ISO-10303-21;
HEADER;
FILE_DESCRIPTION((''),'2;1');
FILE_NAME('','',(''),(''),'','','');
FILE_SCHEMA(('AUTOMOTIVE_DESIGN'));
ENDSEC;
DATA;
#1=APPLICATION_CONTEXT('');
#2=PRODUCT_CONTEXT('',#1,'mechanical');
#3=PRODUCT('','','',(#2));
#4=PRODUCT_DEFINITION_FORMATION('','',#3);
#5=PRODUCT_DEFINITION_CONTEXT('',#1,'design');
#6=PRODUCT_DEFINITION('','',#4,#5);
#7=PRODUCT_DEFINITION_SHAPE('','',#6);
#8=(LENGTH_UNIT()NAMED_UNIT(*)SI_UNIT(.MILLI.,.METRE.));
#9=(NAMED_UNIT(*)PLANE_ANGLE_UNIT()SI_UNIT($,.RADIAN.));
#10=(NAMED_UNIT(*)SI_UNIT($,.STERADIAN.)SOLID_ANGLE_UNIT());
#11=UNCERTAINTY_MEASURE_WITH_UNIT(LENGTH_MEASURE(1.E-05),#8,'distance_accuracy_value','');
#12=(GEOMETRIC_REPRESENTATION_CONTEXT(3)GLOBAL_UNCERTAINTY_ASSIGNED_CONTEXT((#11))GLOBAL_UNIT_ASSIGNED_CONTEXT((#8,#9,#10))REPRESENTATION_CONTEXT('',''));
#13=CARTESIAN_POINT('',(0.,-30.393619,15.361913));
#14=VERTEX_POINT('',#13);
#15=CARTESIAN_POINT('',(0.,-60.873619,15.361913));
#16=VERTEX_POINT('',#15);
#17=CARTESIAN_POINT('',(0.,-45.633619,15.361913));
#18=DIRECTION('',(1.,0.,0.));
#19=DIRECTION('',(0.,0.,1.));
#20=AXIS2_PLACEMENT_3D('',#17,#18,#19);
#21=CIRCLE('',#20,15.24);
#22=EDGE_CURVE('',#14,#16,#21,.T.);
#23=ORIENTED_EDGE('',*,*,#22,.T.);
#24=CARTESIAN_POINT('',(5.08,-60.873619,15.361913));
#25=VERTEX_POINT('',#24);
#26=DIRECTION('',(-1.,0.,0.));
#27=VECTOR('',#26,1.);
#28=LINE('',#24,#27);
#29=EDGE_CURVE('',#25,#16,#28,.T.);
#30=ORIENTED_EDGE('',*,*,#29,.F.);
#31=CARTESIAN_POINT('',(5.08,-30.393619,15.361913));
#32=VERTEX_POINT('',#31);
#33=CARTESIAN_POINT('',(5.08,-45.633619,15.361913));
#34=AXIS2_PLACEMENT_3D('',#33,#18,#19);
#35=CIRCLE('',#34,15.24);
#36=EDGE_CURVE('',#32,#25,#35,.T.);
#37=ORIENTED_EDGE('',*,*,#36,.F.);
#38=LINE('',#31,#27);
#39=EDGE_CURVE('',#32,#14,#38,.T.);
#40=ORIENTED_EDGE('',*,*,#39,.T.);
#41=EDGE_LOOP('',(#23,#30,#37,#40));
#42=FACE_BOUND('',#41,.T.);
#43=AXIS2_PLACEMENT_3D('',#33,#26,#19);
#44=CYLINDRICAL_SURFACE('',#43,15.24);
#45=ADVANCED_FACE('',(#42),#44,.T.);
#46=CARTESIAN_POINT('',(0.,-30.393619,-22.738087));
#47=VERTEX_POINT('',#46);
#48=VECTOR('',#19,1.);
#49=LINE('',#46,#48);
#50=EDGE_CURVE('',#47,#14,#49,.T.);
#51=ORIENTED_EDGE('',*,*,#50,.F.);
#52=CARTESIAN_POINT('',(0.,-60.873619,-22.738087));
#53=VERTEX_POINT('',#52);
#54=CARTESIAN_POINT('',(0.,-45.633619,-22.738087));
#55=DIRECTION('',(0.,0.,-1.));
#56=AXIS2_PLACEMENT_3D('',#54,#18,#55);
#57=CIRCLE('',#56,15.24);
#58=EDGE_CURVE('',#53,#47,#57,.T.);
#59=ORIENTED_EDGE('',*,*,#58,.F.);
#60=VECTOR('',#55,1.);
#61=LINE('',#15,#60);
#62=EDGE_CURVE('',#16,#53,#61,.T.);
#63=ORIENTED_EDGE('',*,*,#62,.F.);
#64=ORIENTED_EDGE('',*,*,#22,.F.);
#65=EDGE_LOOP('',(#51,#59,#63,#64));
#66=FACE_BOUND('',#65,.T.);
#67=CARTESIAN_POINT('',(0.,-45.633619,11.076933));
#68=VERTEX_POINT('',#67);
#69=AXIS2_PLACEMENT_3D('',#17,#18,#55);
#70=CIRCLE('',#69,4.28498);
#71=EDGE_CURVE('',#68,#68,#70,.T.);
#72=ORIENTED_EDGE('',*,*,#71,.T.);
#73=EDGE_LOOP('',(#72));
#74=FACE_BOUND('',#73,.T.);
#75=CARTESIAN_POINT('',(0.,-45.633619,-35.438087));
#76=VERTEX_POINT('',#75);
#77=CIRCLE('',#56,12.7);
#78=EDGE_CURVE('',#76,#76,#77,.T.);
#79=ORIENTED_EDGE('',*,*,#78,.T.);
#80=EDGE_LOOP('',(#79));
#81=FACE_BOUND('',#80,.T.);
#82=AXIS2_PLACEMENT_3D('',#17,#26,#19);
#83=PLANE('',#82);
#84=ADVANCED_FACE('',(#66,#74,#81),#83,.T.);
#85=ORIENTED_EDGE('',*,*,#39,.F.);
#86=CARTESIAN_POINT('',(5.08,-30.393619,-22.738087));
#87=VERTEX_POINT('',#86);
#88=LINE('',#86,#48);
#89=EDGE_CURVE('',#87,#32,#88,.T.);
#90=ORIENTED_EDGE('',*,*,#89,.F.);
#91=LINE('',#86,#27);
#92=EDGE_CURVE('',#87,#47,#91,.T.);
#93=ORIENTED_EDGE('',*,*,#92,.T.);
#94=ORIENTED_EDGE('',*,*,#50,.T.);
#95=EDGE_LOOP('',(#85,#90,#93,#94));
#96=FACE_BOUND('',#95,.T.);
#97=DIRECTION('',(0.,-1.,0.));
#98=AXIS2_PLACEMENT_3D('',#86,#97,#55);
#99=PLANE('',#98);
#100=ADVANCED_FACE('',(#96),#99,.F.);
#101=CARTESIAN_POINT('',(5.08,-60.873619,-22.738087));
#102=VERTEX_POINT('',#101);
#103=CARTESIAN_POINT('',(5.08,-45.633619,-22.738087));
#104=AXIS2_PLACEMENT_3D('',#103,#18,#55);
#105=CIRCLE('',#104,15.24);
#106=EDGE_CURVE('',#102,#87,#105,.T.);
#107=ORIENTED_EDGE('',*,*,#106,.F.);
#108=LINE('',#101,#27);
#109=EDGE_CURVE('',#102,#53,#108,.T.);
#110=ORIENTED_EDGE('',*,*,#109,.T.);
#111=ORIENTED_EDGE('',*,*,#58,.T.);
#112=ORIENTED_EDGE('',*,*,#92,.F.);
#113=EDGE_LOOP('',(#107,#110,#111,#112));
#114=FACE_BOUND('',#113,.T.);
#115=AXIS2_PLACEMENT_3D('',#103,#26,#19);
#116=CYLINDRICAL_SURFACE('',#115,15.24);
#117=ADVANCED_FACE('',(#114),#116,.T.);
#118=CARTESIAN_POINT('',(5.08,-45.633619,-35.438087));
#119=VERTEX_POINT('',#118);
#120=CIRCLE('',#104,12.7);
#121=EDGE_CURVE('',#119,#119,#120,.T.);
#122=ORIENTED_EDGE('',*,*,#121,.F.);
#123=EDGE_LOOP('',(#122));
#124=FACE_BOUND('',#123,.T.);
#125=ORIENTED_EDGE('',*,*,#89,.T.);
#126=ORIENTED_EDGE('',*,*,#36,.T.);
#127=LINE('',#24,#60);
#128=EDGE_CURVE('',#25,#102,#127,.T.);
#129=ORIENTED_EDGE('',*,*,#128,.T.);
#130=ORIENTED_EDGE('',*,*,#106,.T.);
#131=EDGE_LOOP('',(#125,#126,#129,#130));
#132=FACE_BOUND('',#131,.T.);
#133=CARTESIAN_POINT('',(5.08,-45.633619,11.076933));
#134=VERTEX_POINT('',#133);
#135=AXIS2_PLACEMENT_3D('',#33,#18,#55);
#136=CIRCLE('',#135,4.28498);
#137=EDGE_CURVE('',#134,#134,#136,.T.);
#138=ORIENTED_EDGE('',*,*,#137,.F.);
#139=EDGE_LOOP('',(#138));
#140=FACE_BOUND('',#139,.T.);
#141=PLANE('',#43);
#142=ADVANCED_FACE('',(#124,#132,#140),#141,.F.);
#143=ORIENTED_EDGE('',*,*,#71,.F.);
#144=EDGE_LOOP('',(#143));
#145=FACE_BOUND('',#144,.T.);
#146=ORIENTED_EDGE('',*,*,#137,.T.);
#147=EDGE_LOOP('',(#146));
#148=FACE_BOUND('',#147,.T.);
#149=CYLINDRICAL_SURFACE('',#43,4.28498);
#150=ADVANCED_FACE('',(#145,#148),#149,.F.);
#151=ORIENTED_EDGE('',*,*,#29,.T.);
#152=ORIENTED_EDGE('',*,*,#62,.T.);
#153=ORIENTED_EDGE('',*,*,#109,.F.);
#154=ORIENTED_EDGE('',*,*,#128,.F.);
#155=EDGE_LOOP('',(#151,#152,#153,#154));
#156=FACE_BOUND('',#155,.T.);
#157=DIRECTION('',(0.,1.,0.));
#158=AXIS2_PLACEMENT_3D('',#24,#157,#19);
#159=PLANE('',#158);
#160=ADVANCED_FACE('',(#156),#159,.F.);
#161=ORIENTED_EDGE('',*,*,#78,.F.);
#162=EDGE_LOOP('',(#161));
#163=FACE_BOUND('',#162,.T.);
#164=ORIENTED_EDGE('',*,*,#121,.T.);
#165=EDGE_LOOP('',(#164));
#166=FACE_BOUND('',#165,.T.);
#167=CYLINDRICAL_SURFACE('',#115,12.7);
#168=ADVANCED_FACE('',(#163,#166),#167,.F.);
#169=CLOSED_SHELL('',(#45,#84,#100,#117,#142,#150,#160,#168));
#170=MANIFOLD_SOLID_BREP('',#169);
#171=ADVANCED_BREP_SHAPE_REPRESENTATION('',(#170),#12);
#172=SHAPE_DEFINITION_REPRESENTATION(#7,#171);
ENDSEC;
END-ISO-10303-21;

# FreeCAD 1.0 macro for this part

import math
import FreeCAD as App
import Part
import Sketcher
Q = App.Units.Quantity

doc = App.newDocument("Part")
body = doc.addObject("PartDesign::Body", "Body")

sketch1 = doc.addObject("Sketcher::SketchObject", "Sketch")
body.addObject(sketch1)
sketch1.AttachmentSupport = (doc.YZ_Plane, [""])
sketch1.MapMode = "FlatFace"
sketch1.addGeometry(Part.LineSegment(App.Vector(-60.9, 15.4, 0), App.Vector(-60.9, -22.7, 0)), False)
sketch1.addGeometry(Part.ArcOfCircle(Part.Circle(App.Vector(-45.6, -22.7, 0), App.Vector(0, 0, 1), 15.2), math.radians(180), math.radians(360)), False)
sketch1.addGeometry(Part.LineSegment(App.Vector(-30.4, -22.7, 0), App.Vector(-30.4, 15.4, 0)), False)
sketch1.addGeometry(Part.ArcOfCircle(Part.Circle(App.Vector(-45.6, 15.4, 0), App.Vector(0, 0, 1), 15.2), math.radians(0), math.radians(180)), False)
sketch1.addGeometry(Part.Circle(App.Vector(-45.6, -22.7, 0), App.Vector(0, 0, 1), 12.7), False)
sketch1.addGeometry(Part.Circle(App.Vector(-45.6, 15.4, 0), App.Vector(0, 0, 1), 4.3), False)
sketch1.addConstraint(Sketcher.Constraint("Tangent", 0, 2, 1, 1))
sketch1.addConstraint(Sketcher.Constraint("Tangent", 1, 2, 2, 1))
sketch1.addConstraint(Sketcher.Constraint("Tangent", 2, 2, 3, 1))
sketch1.addConstraint(Sketcher.Constraint("Tangent", 3, 2, 0, 1))
sketch1.addConstraint(Sketcher.Constraint("Vertical", 0))
sketch1.addConstraint(Sketcher.Constraint("Vertical", 2))
sketch1.addConstraint(Sketcher.Constraint("Coincident", 4, 3, 1, 3))
sketch1.addConstraint(Sketcher.Constraint("Coincident", 5, 3, 3, 3))
sketch1.addConstraint(Sketcher.Constraint("Diameter", 4, Q("1 in")))
sketch1.addConstraint(Sketcher.Constraint("Radius", 1, Q("0.6 in")))
sketch1.addConstraint(Sketcher.Constraint("DistanceY", 0, 2, 0, 1, Q("1.5 in")))
sketch1.addConstraint(Sketcher.Constraint("Diameter", 5, Q("0.3374 in")))
sketch1.addConstraint(Sketcher.Constraint("DistanceX", 1, 3, -1, 1, Q("45.633619 mm")))
sketch1.addConstraint(Sketcher.Constraint("DistanceY", 1, 3, -1, 1, Q("22.738087 mm")))
pad1 = doc.addObject("PartDesign::Pad", "Pad")
body.addObject(pad1)
pad1.Profile = sketch1
pad1.Length = Q("0.2 in")

doc.recompute()
